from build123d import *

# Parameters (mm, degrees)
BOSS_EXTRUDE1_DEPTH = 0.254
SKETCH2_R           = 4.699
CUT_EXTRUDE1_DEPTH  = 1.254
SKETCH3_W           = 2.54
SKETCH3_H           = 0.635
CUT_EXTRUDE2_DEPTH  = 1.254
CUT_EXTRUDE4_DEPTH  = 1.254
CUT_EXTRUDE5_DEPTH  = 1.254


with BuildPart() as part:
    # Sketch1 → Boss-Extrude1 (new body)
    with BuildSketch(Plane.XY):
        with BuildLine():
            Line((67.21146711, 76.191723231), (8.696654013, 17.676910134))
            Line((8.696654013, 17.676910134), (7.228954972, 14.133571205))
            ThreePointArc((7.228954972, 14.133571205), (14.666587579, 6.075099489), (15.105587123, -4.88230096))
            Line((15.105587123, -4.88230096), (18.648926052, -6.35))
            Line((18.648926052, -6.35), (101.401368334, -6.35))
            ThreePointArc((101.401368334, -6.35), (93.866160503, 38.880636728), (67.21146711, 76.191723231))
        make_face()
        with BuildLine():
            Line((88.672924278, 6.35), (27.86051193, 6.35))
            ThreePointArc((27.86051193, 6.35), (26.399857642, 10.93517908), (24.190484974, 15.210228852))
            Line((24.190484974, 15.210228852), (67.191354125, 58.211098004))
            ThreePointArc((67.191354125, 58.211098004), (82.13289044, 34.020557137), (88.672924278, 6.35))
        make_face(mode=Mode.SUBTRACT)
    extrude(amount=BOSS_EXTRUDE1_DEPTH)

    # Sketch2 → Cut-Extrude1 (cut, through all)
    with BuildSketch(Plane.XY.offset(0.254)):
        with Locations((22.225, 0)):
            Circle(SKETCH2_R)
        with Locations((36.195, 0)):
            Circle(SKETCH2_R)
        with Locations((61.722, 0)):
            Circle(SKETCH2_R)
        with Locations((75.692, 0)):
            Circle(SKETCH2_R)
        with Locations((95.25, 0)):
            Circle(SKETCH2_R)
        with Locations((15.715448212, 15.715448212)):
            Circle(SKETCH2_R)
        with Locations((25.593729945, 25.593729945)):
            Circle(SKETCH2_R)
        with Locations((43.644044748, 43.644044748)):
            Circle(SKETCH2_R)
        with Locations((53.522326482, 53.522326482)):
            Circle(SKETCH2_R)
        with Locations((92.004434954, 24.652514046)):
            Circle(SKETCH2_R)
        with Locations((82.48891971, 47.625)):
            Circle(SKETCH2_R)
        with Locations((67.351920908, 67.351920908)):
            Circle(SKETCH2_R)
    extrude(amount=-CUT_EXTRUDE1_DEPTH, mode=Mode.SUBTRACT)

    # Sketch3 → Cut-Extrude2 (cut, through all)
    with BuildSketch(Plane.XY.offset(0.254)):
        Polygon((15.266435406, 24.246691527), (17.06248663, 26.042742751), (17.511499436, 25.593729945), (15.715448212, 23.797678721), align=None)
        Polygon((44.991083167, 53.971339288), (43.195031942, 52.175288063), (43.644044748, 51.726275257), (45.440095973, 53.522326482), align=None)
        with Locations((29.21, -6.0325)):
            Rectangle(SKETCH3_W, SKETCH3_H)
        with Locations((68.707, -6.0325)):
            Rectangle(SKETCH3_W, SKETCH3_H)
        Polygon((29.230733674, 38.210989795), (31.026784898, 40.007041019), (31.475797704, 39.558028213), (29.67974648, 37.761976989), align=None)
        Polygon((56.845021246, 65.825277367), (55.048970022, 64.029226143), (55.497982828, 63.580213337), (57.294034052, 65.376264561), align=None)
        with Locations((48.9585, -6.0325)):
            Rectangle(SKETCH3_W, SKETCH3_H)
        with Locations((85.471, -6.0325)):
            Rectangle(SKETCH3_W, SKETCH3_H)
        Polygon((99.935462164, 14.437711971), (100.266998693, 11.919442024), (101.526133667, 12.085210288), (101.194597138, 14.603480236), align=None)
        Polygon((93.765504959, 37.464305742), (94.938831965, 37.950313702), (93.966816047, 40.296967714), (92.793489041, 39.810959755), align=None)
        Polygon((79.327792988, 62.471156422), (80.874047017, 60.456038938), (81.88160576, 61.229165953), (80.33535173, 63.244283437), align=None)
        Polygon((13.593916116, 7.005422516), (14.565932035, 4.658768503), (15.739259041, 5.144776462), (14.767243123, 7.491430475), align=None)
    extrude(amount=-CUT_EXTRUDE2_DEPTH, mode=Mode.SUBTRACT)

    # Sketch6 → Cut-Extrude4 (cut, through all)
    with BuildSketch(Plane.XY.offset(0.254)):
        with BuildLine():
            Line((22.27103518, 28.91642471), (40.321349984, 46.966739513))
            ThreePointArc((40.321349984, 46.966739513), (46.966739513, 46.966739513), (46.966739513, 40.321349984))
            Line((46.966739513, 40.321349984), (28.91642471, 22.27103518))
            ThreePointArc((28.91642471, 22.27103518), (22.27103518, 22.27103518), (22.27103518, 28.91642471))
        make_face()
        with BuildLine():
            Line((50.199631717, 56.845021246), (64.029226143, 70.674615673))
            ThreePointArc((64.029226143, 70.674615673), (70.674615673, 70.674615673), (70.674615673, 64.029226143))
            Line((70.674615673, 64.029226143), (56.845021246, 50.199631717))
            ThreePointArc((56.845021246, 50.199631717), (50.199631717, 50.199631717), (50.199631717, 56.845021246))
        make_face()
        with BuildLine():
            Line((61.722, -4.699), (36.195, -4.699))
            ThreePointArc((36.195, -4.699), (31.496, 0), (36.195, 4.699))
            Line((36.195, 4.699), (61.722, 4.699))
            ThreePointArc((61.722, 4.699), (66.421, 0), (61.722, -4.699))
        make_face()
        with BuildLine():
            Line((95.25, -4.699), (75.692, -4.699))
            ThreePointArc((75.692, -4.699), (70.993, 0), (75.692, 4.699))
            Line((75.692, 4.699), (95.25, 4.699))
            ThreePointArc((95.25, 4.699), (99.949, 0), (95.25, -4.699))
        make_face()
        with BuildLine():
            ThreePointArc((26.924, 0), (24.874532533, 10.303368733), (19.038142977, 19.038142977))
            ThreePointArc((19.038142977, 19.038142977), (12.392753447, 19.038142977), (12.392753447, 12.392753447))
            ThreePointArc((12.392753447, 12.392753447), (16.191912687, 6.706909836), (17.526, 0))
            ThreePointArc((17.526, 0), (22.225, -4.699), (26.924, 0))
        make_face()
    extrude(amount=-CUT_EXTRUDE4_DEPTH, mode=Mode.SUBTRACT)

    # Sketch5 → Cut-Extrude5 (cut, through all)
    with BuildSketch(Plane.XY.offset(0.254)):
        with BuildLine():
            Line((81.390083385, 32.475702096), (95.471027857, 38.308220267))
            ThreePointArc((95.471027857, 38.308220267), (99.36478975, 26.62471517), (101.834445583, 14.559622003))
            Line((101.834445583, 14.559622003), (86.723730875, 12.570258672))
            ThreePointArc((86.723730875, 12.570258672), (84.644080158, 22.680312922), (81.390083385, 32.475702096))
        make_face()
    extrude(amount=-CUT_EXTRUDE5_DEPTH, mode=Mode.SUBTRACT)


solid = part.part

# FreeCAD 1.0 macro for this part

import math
import FreeCAD as App
import Part
import Sketcher
from FreeCAD import Vector
Q = App.Units.Quantity


def add_polygon(sketch, points):
    """Adds a closed chain of lines whose ends are joined by coincident constraints."""
    first, n = sketch.GeometryCount, len(points)
    for a, b in zip(points, points[1:] + points[:1]):
        sketch.addGeometry(Part.LineSegment(App.Vector(*a, 0), App.Vector(*b, 0)), False)
    for i in range(n):
        sketch.addConstraint(Sketcher.Constraint("Coincident", first + i, 2, first + (i + 1) % n, 1))

doc = App.newDocument("Part")
params = doc.addObject("Spreadsheet::Sheet", "Params")
for row, (alias, value) in enumerate([
    ("sketch1_radius", "4 in"),
    ("sketch1_radius2", "3.5 in"),
    ("sketch1_radius3", "0.625 in"),
    ("sketch1_radius4", "1.125 in"),
    ("pad1_length", "0.01 in"),
    ("sketch2_diameter", "0.37 in"),
    ("sketch3_width", "0.1 in"),
    ("sketch3_length", "0.1 in"),
    ("sketch3_length2", "0.05 in"),
    ("sketch3_height", "0.025 in"),
    ("sketch3_length3", "0.025 in"),
    ("sketch4_radius", "1.06 in"),
    ("sketch4_radius2", "0.69 in"),
    ("sketch4_width", "0.77 in"),
    ("sketch4_length", "0.77 in"),
    ("sketch4_width2", "1.005 in"),
    ("sketch5_radius", "3.45 in"),
    ("sketch5_radius2", "4.05 in"),
], start=1):
    params.set(f"A{row}", alias)
    params.set(f"B{row}", "=" + value)
    params.setAlias(f"B{row}", alias)

body = doc.addObject("PartDesign::Body", "Body")

sketch1 = body.newObject("Sketcher::SketchObject", "Sketch")
sketch1.AttachmentSupport = (doc.getObject("XY_Plane"), [""])
sketch1.MapMode = "FlatFace"
sketch1.addGeometry([
    Part.LineSegment(Vector(67.2, 76.2, 0), Vector(8.7, 17.7, 0)),
    Part.LineSegment(Vector(8.7, 17.7, 0), Vector(7.2, 14.1, 0)),
    Part.ArcOfCircle(Part.Circle(Vector(0, 0, 0), Vector(0, 0, 1), 15.9), math.radians(-18), math.radians(63)),
    Part.LineSegment(Vector(15.1, -4.9, 0), Vector(18.6, -6.3, 0)),
    Part.LineSegment(Vector(18.6, -6.3, 0), Vector(101.4, -6.3, 0)),
    Part.ArcOfCircle(Part.Circle(Vector(0, 0, 0), Vector(0, 0, 1), 101.6), math.radians(-4), math.radians(49)),
    Part.ArcOfCircle(Part.Circle(Vector(0, 0, 0), Vector(0, 0, 1), 88.9), math.radians(4), math.radians(41)),
    Part.LineSegment(Vector(88.7, 6.3, 0), Vector(27.9, 6.3, 0)),
    Part.ArcOfCircle(Part.Circle(Vector(0, 0, 0), Vector(0, 0, 1), 28.6), math.radians(12.84), math.radians(32.16)),
    Part.LineSegment(Vector(24.2, 15.2, 0), Vector(67.2, 58.2, 0)),
], False)
sketch1.addConstraint([
    Sketcher.Constraint("Coincident", 0, 2, 1, 1),
    Sketcher.Constraint("Coincident", 1, 2, 2, 2),
    Sketcher.Constraint("Coincident", 2, 1, 3, 1),
    Sketcher.Constraint("Coincident", 3, 2, 4, 1),
    Sketcher.Constraint("Coincident", 4, 2, 5, 1),
    Sketcher.Constraint("Coincident", 5, 2, 0, 1),
    Sketcher.Constraint("Coincident", 6, 1, 7, 1),
    Sketcher.Constraint("Coincident", 7, 2, 8, 1),
    Sketcher.Constraint("Coincident", 8, 2, 9, 1),
    Sketcher.Constraint("Coincident", 9, 2, 6, 2),
    Sketcher.Constraint("Horizontal", 4),
    Sketcher.Constraint("Horizontal", 7),
    Sketcher.Constraint("Coincident", 2, 3, -1, 1),
    Sketcher.Constraint("Coincident", 5, 3, -1, 1),
    Sketcher.Constraint("Coincident", 6, 3, -1, 1),
    Sketcher.Constraint("Coincident", 8, 3, -1, 1),
    Sketcher.Constraint("Perpendicular", 1, 3),
    Sketcher.Constraint("Parallel", 0, 9),
    Sketcher.Constraint("Equal", 1, 3),
    Sketcher.Constraint("Radius", 5, Q("4 in")),
    Sketcher.Constraint("Radius", 6, Q("3.5 in")),
    Sketcher.Constraint("Angle", 0, Q("-135 deg")),
    Sketcher.Constraint("Radius", 2, Q("0.625 in")),
    Sketcher.Constraint("Radius", 8, Q("1.125 in")),
    Sketcher.Constraint("Angle", 1, Q("-112.5 deg")),
    Sketcher.Constraint("DistanceY", 4, 2, 6, 1, Q("0.5 in")),
    Sketcher.Constraint("DistanceY", 3, 2, -1, 1, Q("0.25 in")),
    Sketcher.Constraint("DistanceY", 2, 1, -1, 1, 4.882301),
    Sketcher.Constraint("DistanceY", -1, 1, 9, 2, 58.211098),
    Sketcher.Constraint("DistanceX", 5, 2, 4, 2, 34.189901),
])
sketch1.setExpression("Constraints[19]", "Params.sketch1_radius")
sketch1.setExpression("Constraints[20]", "Params.sketch1_radius2")
sketch1.setExpression("Constraints[22]", "Params.sketch1_radius3")
sketch1.setExpression("Constraints[23]", "Params.sketch1_radius4")
pad1 = body.newObject("PartDesign::Pad", "Pad")
pad1.Profile = sketch1
pad1.setExpression("Length", "Params.pad1_length")

sketch2 = body.newObject("Sketcher::SketchObject", "Sketch001")
sketch2.AttachmentSupport = (doc.getObject("XY_Plane"), [""])
sketch2.MapMode = "FlatFace"
sketch2.AttachmentOffset = App.Placement(Vector(0, 0, 0.01 * 25.4), App.Rotation())
sketch2.addGeometry([
    Part.Circle(Vector(22.2, 0, 0), Vector(0, 0, 1), 4.7),
    Part.Circle(Vector(36.2, 0, 0), Vector(0, 0, 1), 4.7),
    Part.Circle(Vector(61.7, 0, 0), Vector(0, 0, 1), 4.7),
    Part.Circle(Vector(75.7, 0, 0), Vector(0, 0, 1), 4.7),
    Part.Circle(Vector(95.2, 0, 0), Vector(0, 0, 1), 4.7),
    Part.Circle(Vector(15.7, 15.7, 0), Vector(0, 0, 1), 4.7),
    Part.Circle(Vector(25.6, 25.6, 0), Vector(0, 0, 1), 4.7),
    Part.Circle(Vector(43.6, 43.6, 0), Vector(0, 0, 1), 4.7),
    Part.Circle(Vector(53.5, 53.5, 0), Vector(0, 0, 1), 4.7),
    Part.Circle(Vector(92, 24.7, 0), Vector(0, 0, 1), 4.7),
    Part.Circle(Vector(82.5, 47.6, 0), Vector(0, 0, 1), 4.7),
    Part.Circle(Vector(67.4, 67.4, 0), Vector(0, 0, 1), 4.7),
], False)
sketch2.addConstraint([
    Sketcher.Constraint("Equal", 0, 1),
    Sketcher.Constraint("Equal", 1, 2),
    Sketcher.Constraint("Equal", 2, 3),
    Sketcher.Constraint("Equal", 3, 4),
    Sketcher.Constraint("Equal", 4, 5),
    Sketcher.Constraint("Equal", 5, 6),
    Sketcher.Constraint("Equal", 6, 7),
    Sketcher.Constraint("Equal", 7, 8),
    Sketcher.Constraint("Equal", 8, 9),
    Sketcher.Constraint("Equal", 9, 10),
    Sketcher.Constraint("Equal", 10, 11),
    Sketcher.Constraint("PointOnObject", 0, 3, -1),
    Sketcher.Constraint("PointOnObject", 1, 3, -1),
    Sketcher.Constraint("PointOnObject", 2, 3, -1),
    Sketcher.Constraint("PointOnObject", 3, 3, -1),
    Sketcher.Constraint("PointOnObject", 4, 3, -1),
    Sketcher.Constraint("Diameter", 0, Q("0.37 in")),
    Sketcher.Constraint("DistanceX", -1, 1, 2, 3, Q("2.43 in")),
    Sketcher.Constraint("DistanceX", -1, 1, 3, 3, Q("2.98 in")),
    Sketcher.Constraint("DistanceX", -1, 1, 4, 3, Q("3.75 in")),
    Sketcher.Constraint("DistanceX", 0, 3, 1, 3, Q("0.55 in")),
    Sketcher.Constraint("DistanceX", -1, 1, 0, 3, Q("0.875 in")),
    Sketcher.Constraint("DistanceY", -1, 1, 10, 3, Q("1.875 in")),
    Sketcher.Constraint("DistanceX", 11, 3, 10, 3, 15.136999),
    Sketcher.Constraint("DistanceX", -1, 1, 5, 3, 15.715448),
    Sketcher.Constraint("DistanceY", -1, 1, 5, 3, 15.715448),
    Sketcher.Constraint("DistanceX", -1, 1, 6, 3, 25.59373),
    Sketcher.Constraint("DistanceY", -1, 1, 6, 3, 25.59373),
    Sketcher.Constraint("DistanceX", -1, 1, 10, 3, 82.48892),
    Sketcher.Constraint("DistanceY", -1, 1, 11, 3, 67.351921),
    Sketcher.Constraint("DistanceX", 7, 3, 8, 3, 9.878282),
    Sketcher.Constraint("DistanceY", 7, 3, 8, 3, 9.878282),
    Sketcher.Constraint("DistanceX", 5, 3, 8, 3, 37.806878),
    Sketcher.Constraint("DistanceY", 5, 3, 8, 3, 37.806878),
    Sketcher.Constraint("DistanceX", 8, 3, 9, 3, 38.482108),
    Sketcher.Constraint("DistanceY", 9, 3, 7, 3, 18.991531),
])
sketch2.setExpression("Constraints[16]", "Params.sketch2_diameter")
pocket1 = body.newObject("PartDesign::Pocket", "Pocket")
pocket1.Profile = sketch2
pocket1.Type = "ThroughAll"

sketch3 = body.newObject("Sketcher::SketchObject", "Sketch002")
sketch3.AttachmentSupport = (doc.getObject("XY_Plane"), [""])
sketch3.MapMode = "FlatFace"
sketch3.AttachmentOffset = App.Placement(Vector(0, 0, 0.01 * 25.4), App.Rotation())
add_polygon(sketch3, [(17.1, 26), (15.3, 24.2), (15.7, 23.8), (17.5, 25.6)])
add_polygon(sketch3, [(45, 54), (43.2, 52.2), (43.6, 51.7), (45.4, 53.5)])
add_polygon(sketch3, [(27.9, -5.7), (27.9, -6.3), (30.5, -6.3), (30.5, -5.7)])
add_polygon(sketch3, [(67.4, -5.7), (67.4, -6.3), (70, -6.3), (70, -5.7)])
add_polygon(sketch3, [(31, 40), (29.2, 38.2), (29.7, 37.8), (31.5, 39.6)])
add_polygon(sketch3, [(56.8, 65.8), (55, 64), (55.5, 63.6), (57.3, 65.4)])
add_polygon(sketch3, [(47.7, -5.7), (47.7, -6.3), (50.2, -6.3), (50.2, -5.7)])
add_polygon(sketch3, [(84.2, -5.7), (84.2, -6.3), (86.7, -6.3), (86.7, -5.7)])
add_polygon(sketch3, [(99.9, 14.4), (100.3, 11.9), (101.5, 12.1), (101.2, 14.6)])
add_polygon(sketch3, [(93.8, 37.5), (94.9, 38), (94, 40.3), (92.8, 39.8)])
add_polygon(sketch3, [(79.3, 62.5), (80.9, 60.5), (81.9, 61.2), (80.3, 63.2)])
add_polygon(sketch3, [(13.6, 7), (14.6, 4.7), (15.7, 5.1), (14.8, 7.5)])
sketch3.addConstraint([
    Sketcher.Constraint("Vertical", 8),
    Sketcher.Constraint("Horizontal", 9),
    Sketcher.Constraint("Vertical", 10),
    Sketcher.Constraint("Horizontal", 11),
    Sketcher.Constraint("Vertical", 12),
    Sketcher.Constraint("Horizontal", 13),
    Sketcher.Constraint("Vertical", 14),
    Sketcher.Constraint("Horizontal", 15),
    Sketcher.Constraint("Vertical", 24),
    Sketcher.Constraint("Horizontal", 25),
    Sketcher.Constraint("Vertical", 26),
    Sketcher.Constraint("Horizontal", 27),
    Sketcher.Constraint("Vertical", 28),
    Sketcher.Constraint("Horizontal", 29),
    Sketcher.Constraint("Vertical", 30),
    Sketcher.Constraint("Horizontal", 31),
    Sketcher.Constraint("Perpendicular", 0, 1),
    Sketcher.Constraint("Perpendicular", 1, 2),
    Sketcher.Constraint("Perpendicular", 2, 3),
    Sketcher.Constraint("Perpendicular", 3, 4),
    Sketcher.Constraint("Perpendicular", 4, 5),
    Sketcher.Constraint("Perpendicular", 5, 6),
    Sketcher.Constraint("Perpendicular", 6, 7),
    Sketcher.Constraint("Perpendicular", 7, 16),
    Sketcher.Constraint("Perpendicular", 16, 17),
    Sketcher.Constraint("Perpendicular", 17, 18),
    Sketcher.Constraint("Perpendicular", 18, 19),
    Sketcher.Constraint("Perpendicular", 19, 20),
    Sketcher.Constraint("Perpendicular", 20, 21),
    Sketcher.Constraint("Perpendicular", 21, 22),
    Sketcher.Constraint("Perpendicular", 22, 23),
    Sketcher.Constraint("Perpendicular", 32, 33),
    Sketcher.Constraint("Perpendicular", 33, 34),
    Sketcher.Constraint("Perpendicular", 34, 35),
    Sketcher.Constraint("Perpendicular", 36, 37),
    Sketcher.Constraint("Perpendicular", 37, 38),
    Sketcher.Constraint("Perpendicular", 38, 39),
    Sketcher.Constraint("Perpendicular", 40, 41),
    Sketcher.Constraint("Perpendicular", 41, 42),
    Sketcher.Constraint("Perpendicular", 42, 43),
    Sketcher.Constraint("Parallel", 39, 44),
    Sketcher.Constraint("Perpendicular", 44, 45),
    Sketcher.Constraint("Perpendicular", 45, 46),
    Sketcher.Constraint("Perpendicular", 46, 47),
    Sketcher.Constraint("Horizontal", 9, 2, 12, 2),
    Sketcher.Constraint("Horizontal", 11, 2, 14, 2),
    Sketcher.Constraint("Horizontal", 13, 2, 24, 2),
    Sketcher.Constraint("Horizontal", 15, 2, 26, 2),
    Sketcher.Constraint("Horizontal", 25, 2, 28, 2),
    Sketcher.Constraint("Horizontal", 27, 2, 30, 2),
    Sketcher.Constraint("Equal", 11, 13),
    Sketcher.Constraint("Equal", 15, 25),
    Sketcher.Constraint("Equal", 27, 29),
    Sketcher.Constraint("Equal", 2, 4),
    Sketcher.Constraint("Equal", 3, 5),
    Sketcher.Constraint("Equal", 6, 16),
    Sketcher.Constraint("Equal", 7, 17),
    Sketcher.Constraint("Equal", 18, 20),
    Sketcher.Constraint("Equal", 19, 21),
    Sketcher.Constraint("Equal", 22, 32),
    Sketcher.Constraint("Equal", 35, 36),
    Sketcher.Constraint("Equal", 34, 37),
    Sketcher.Constraint("Equal", 39, 40),
    Sketcher.Constraint("Equal", 38, 41),
    Sketcher.Constraint("Equal", 42, 44),
    Sketcher.Constraint("Equal", 43, 45),
    Sketcher.Constraint("DistanceX", 9, 1, 9, 2, Q("0.1 in")),
    Sketcher.Constraint("Angle", 0, Q("-135 deg")),
    Sketcher.Constraint("Distance", 0, Q("0.1 in")),
    Sketcher.Constraint("DistanceX", -1, 1, 8, 2, Q("1.1 in")),
    Sketcher.Constraint("Angle", 32, Q("-82.5 deg")),
    Sketcher.Constraint("Angle", 36, Q("22.5 deg")),
    Sketcher.Constraint("Angle", 40, Q("-52.5 deg")),
    Sketcher.Constraint("Distance", 33, Q("0.05 in")),
    Sketcher.Constraint("DistanceY", 8, 2, 8, 1, Q("0.025 in")),
    Sketcher.Constraint("DistanceY", 8, 2, -1, 1, Q("0.25 in")),
    Sketcher.Constraint("DistanceX", 13, 2, 28, 2, Q("0.56 in")),
    Sketcher.Constraint("Distance", 1, Q("0.025 in")),
    Sketcher.Constraint("DistanceX", -1, 1, 12, 2, Q("2.655 in")),
    Sketcher.Constraint("DistanceX", -1, 1, 24, 2, Q("1.8775 in")),
    Sketcher.Constraint("DistanceX", -1, 1, 2, 2, 17.511499),
    Sketcher.Constraint("DistanceX", -1, 1, 32, 2, 100.266999),
    Sketcher.Constraint("DistanceX", 16, 2, 4, 2, 13.964298),
    Sketcher.Constraint("DistanceY", 16, 2, 4, 2, 13.964298),
    Sketcher.Constraint("DistanceX", 0, 2, 16, 2, 13.964298),
    Sketcher.Constraint("DistanceY", 0, 2, 16, 2, 13.964298),
    Sketcher.Constraint("DistanceY", 6, 2, 20, 2, 10.5069),
    Sketcher.Constraint("DistanceX", 7, 2, 21, 2, 10.5069),
    Sketcher.Constraint("DistanceY", 35, 2, 36, 2, 23.512602),
    Sketcher.Constraint("DistanceX", 36, 2, 33, 2, 6.587302),
    Sketcher.Constraint("DistanceY", 37, 2, 41, 2, 20.932198),
    Sketcher.Constraint("DistanceY", 41, 2, 22, 2, 4.147099),
    Sketcher.Constraint("DistanceY", 46, 2, 2, 2, 18.102299),
    Sketcher.Constraint("DistanceY", -1, 1, 0, 2, 24.246692),
    Sketcher.Constraint("DistanceX", -1, 1, 42, 2, 80.335352),
    Sketcher.Constraint("DistanceX", -1, 1, 45, 2, 15.739259),
])
sketch3.setExpression("Constraints[114]", "Params.sketch3_width")
sketch3.setExpression("Constraints[116]", "Params.sketch3_length")
sketch3.setExpression("Constraints[121]", "Params.sketch3_length2")
sketch3.setExpression("Constraints[122]", "Params.sketch3_height")
sketch3.setExpression("Constraints[125]", "Params.sketch3_length3")
pocket2 = body.newObject("PartDesign::Pocket", "Pocket001")
pocket2.Profile = sketch3
pocket2.Type = "ThroughAll"

sketch4 = body.newObject("Sketcher::SketchObject", "Sketch003")
sketch4.AttachmentSupport = (doc.getObject("XY_Plane"), [""])
sketch4.MapMode = "FlatFace"
sketch4.AttachmentOffset = App.Placement(Vector(0, 0, 0.01 * 25.4), App.Rotation())
sketch4.addGeometry([
    Part.LineSegment(Vector(40.3, 47, 0), Vector(22.3, 28.9, 0)),
    Part.ArcOfCircle(Part.Circle(Vector(25.6, 25.6, 0), Vector(0, 0, 1), 4.7), math.radians(135), math.radians(315)),
    Part.LineSegment(Vector(28.9, 22.3, 0), Vector(47, 40.3, 0)),
    Part.ArcOfCircle(Part.Circle(Vector(43.6, 43.6, 0), Vector(0, 0, 1), 4.7), math.radians(-45), math.radians(135)),
    Part.LineSegment(Vector(64, 70.7, 0), Vector(50.2, 56.8, 0)),
    Part.ArcOfCircle(Part.Circle(Vector(53.5, 53.5, 0), Vector(0, 0, 1), 4.7), math.radians(135), math.radians(315)),
    Part.LineSegment(Vector(56.8, 50.2, 0), Vector(70.7, 64, 0)),
    Part.ArcOfCircle(Part.Circle(Vector(67.4, 67.4, 0), Vector(0, 0, 1), 4.7), math.radians(-45), math.radians(135)),
    Part.LineSegment(Vector(36.2, -4.7, 0), Vector(61.7, -4.7, 0)),
    Part.ArcOfCircle(Part.Circle(Vector(61.7, 0, 0), Vector(0, 0, 1), 4.7), math.radians(-90), math.radians(90)),
    Part.LineSegment(Vector(61.7, 4.7, 0), Vector(36.2, 4.7, 0)),
    Part.ArcOfCircle(Part.Circle(Vector(36.2, 0, 0), Vector(0, 0, 1), 4.7), math.radians(90), math.radians(270)),
    Part.LineSegment(Vector(75.7, -4.7, 0), Vector(95.2, -4.7, 0)),
    Part.ArcOfCircle(Part.Circle(Vector(95.2, 0, 0), Vector(0, 0, 1), 4.7), math.radians(-90), math.radians(90)),
    Part.LineSegment(Vector(95.2, 4.7, 0), Vector(75.7, 4.7, 0)),
    Part.ArcOfCircle(Part.Circle(Vector(75.7, 0, 0), Vector(0, 0, 1), 4.7), math.radians(90), math.radians(270)),
    Part.ArcOfCircle(Part.Circle(Vector(0, 0, 0), Vector(0, 0, 1), 26.9), math.radians(0), math.radians(45)),
    Part.ArcOfCircle(Part.Circle(Vector(15.7, 15.7, 0), Vector(0, 0, 1), 4.7), math.radians(45), math.radians(225)),
    Part.ArcOfCircle(Part.Circle(Vector(0, 0, 0), Vector(0, 0, 1), 17.5), math.radians(0), math.radians(45)),
    Part.ArcOfCircle(Part.Circle(Vector(22.2, 0, 0), Vector(0, 0, 1), 4.7), math.radians(180), math.radians(360)),
], False)
sketch4.addConstraint([
    Sketcher.Constraint("Tangent", 0, 2, 1, 1),
    Sketcher.Constraint("Tangent", 1, 2, 2, 1),
    Sketcher.Constraint("Tangent", 2, 2, 3, 1),
    Sketcher.Constraint("Tangent", 3, 2, 0, 1),
    Sketcher.Constraint("Tangent", 4, 2, 5, 1),
    Sketcher.Constraint("Tangent", 5, 2, 6, 1),
    Sketcher.Constraint("Tangent", 6, 2, 7, 1),
    Sketcher.Constraint("Tangent", 7, 2, 4, 1),
    Sketcher.Constraint("Tangent", 8, 2, 9, 1),
    Sketcher.Constraint("Tangent", 9, 2, 10, 1),
    Sketcher.Constraint("Tangent", 10, 2, 11, 1),
    Sketcher.Constraint("Tangent", 11, 2, 8, 1),
    Sketcher.Constraint("Tangent", 12, 2, 13, 1),
    Sketcher.Constraint("Tangent", 13, 2, 14, 1),
    Sketcher.Constraint("Tangent", 14, 2, 15, 1),
    Sketcher.Constraint("Tangent", 15, 2, 12, 1),
    Sketcher.Constraint("Tangent", 16, 2, 17, 1),
    Sketcher.Constraint("Tangent", 17, 2, 18, 2),
    Sketcher.Constraint("Tangent", 18, 1, 19, 1),
    Sketcher.Constraint("Tangent", 19, 2, 16, 1),
    Sketcher.Constraint("Horizontal", 8),
    Sketcher.Constraint("Horizontal", 10),
    Sketcher.Constraint("Horizontal", 12),
    Sketcher.Constraint("Horizontal", 14),
    Sketcher.Constraint("Coincident", 16, 3, -1, 1),
    Sketcher.Constraint("Coincident", 18, 3, -1, 1),
    Sketcher.Constraint("Equal", 1, 3),
    Sketcher.Constraint("Equal", 3, 5),
    Sketcher.Constraint("Equal", 5, 7),
    Sketcher.Constraint("Equal", 7, 9),
    Sketcher.Constraint("Equal", 11, 13),
    Sketcher.Constraint("Equal", 15, 17),
    Sketcher.Constraint("PointOnObject", 9, 3, -1),
    Sketcher.Constraint("PointOnObject", 13, 3, -1),
    Sketcher.Constraint("PointOnObject", 19, 3, -1),
    Sketcher.Constraint("Parallel", 2, 4),
    Sketcher.Constraint("Radius", 16, Q("1.06 in")),
    Sketcher.Constraint("Radius", 18, Q("0.69 in")),
    Sketcher.Constraint("Angle", 0, Q("-135 deg")),
    Sketcher.Constraint("DistanceX", 12, 1, 12, 2, Q("0.77 in")),
    Sketcher.Constraint("Distance", 4, Q("0.77 in")),
    Sketcher.Constraint("DistanceX", 8, 1, 8, 2, Q("1.005 in")),
    Sketcher.Constraint("DistanceX", -1, 1, 9, 3, Q("2.43 in")),
    Sketcher.Constraint("DistanceX", -1, 1, 13, 3, Q("3.75 in")),
    Sketcher.Constraint("Distance", 0, Q("1.005 in")),
    Sketcher.Constraint("DistanceX", -1, 1, 1, 3, 25.59373),
    Sketcher.Constraint("DistanceY", -1, 1, 1, 3, 25.59373),
    Sketcher.Constraint("DistanceX", -1, 1, 7, 3, 67.351921),
    Sketcher.Constraint("DistanceY", -1, 1, 7, 3, 67.351921),
    Sketcher.Constraint("DistanceX", -1, 1, 17, 3, 15.715448),
])
sketch4.setExpression("Constraints[36]", "Params.sketch4_radius")
sketch4.setExpression("Constraints[37]", "Params.sketch4_radius2")
sketch4.setExpression("Constraints[39]", "Params.sketch4_width")
sketch4.setExpression("Constraints[40]", "Params.sketch4_length")
sketch4.setExpression("Constraints[41]", "Params.sketch4_width2")
pocket3 = body.newObject("PartDesign::Pocket", "Pocket002")
pocket3.Profile = sketch4
pocket3.Type = "ThroughAll"

sketch5 = body.newObject("Sketcher::SketchObject", "Sketch004")
sketch5.AttachmentSupport = (doc.getObject("XY_Plane"), [""])
sketch5.MapMode = "FlatFace"
sketch5.AttachmentOffset = App.Placement(Vector(0, 0, 0.01 * 25.4), App.Rotation())
sketch5.addGeometry([
    Part.LineSegment(Vector(95, 38, 0), Vector(81, 32, 0)),
    Part.ArcOfCircle(Part.Circle(Vector(0, 0, 0), Vector(0, 0, 1), 88), math.radians(8.25), math.radians(21.75)),
    Part.LineSegment(Vector(87, 13, 0), Vector(102, 15, 0)),
    Part.ArcOfCircle(Part.Circle(Vector(0, 0, 0), Vector(0, 0, 1), 103), math.radians(8.14), math.radians(21.86)),
], False)
sketch5.addConstraint([
    Sketcher.Constraint("Coincident", 0, 2, 1, 2),
    Sketcher.Constraint("Coincident", 1, 1, 2, 1),
    Sketcher.Constraint("Coincident", 2, 2, 3, 1),
    Sketcher.Constraint("Coincident", 3, 2, 0, 1),
    Sketcher.Constraint("Coincident", 1, 3, -1, 1),
    Sketcher.Constraint("Coincident", 3, 3, -1, 1),
    Sketcher.Constraint("Equal", 0, 2),
    Sketcher.Constraint("Radius", 1, Q("3.45 in")),
    Sketcher.Constraint("Radius", 3, Q("4.05 in")),
    Sketcher.Constraint("Angle", 0, Q("-157.5 deg")),
    Sketcher.Constraint("Angle", 2, Q("7.5 deg")),
    Sketcher.Constraint("DistanceY", 2, 2, 3, 2, 23.748598),
])
sketch5.setExpression("Constraints[7]", "Params.sketch5_radius")
sketch5.setExpression("Constraints[8]", "Params.sketch5_radius2")
pocket4 = body.newObject("PartDesign::Pocket", "Pocket003")
pocket4.Profile = sketch5
pocket4.Type = "ThroughAll"

doc.recompute()
